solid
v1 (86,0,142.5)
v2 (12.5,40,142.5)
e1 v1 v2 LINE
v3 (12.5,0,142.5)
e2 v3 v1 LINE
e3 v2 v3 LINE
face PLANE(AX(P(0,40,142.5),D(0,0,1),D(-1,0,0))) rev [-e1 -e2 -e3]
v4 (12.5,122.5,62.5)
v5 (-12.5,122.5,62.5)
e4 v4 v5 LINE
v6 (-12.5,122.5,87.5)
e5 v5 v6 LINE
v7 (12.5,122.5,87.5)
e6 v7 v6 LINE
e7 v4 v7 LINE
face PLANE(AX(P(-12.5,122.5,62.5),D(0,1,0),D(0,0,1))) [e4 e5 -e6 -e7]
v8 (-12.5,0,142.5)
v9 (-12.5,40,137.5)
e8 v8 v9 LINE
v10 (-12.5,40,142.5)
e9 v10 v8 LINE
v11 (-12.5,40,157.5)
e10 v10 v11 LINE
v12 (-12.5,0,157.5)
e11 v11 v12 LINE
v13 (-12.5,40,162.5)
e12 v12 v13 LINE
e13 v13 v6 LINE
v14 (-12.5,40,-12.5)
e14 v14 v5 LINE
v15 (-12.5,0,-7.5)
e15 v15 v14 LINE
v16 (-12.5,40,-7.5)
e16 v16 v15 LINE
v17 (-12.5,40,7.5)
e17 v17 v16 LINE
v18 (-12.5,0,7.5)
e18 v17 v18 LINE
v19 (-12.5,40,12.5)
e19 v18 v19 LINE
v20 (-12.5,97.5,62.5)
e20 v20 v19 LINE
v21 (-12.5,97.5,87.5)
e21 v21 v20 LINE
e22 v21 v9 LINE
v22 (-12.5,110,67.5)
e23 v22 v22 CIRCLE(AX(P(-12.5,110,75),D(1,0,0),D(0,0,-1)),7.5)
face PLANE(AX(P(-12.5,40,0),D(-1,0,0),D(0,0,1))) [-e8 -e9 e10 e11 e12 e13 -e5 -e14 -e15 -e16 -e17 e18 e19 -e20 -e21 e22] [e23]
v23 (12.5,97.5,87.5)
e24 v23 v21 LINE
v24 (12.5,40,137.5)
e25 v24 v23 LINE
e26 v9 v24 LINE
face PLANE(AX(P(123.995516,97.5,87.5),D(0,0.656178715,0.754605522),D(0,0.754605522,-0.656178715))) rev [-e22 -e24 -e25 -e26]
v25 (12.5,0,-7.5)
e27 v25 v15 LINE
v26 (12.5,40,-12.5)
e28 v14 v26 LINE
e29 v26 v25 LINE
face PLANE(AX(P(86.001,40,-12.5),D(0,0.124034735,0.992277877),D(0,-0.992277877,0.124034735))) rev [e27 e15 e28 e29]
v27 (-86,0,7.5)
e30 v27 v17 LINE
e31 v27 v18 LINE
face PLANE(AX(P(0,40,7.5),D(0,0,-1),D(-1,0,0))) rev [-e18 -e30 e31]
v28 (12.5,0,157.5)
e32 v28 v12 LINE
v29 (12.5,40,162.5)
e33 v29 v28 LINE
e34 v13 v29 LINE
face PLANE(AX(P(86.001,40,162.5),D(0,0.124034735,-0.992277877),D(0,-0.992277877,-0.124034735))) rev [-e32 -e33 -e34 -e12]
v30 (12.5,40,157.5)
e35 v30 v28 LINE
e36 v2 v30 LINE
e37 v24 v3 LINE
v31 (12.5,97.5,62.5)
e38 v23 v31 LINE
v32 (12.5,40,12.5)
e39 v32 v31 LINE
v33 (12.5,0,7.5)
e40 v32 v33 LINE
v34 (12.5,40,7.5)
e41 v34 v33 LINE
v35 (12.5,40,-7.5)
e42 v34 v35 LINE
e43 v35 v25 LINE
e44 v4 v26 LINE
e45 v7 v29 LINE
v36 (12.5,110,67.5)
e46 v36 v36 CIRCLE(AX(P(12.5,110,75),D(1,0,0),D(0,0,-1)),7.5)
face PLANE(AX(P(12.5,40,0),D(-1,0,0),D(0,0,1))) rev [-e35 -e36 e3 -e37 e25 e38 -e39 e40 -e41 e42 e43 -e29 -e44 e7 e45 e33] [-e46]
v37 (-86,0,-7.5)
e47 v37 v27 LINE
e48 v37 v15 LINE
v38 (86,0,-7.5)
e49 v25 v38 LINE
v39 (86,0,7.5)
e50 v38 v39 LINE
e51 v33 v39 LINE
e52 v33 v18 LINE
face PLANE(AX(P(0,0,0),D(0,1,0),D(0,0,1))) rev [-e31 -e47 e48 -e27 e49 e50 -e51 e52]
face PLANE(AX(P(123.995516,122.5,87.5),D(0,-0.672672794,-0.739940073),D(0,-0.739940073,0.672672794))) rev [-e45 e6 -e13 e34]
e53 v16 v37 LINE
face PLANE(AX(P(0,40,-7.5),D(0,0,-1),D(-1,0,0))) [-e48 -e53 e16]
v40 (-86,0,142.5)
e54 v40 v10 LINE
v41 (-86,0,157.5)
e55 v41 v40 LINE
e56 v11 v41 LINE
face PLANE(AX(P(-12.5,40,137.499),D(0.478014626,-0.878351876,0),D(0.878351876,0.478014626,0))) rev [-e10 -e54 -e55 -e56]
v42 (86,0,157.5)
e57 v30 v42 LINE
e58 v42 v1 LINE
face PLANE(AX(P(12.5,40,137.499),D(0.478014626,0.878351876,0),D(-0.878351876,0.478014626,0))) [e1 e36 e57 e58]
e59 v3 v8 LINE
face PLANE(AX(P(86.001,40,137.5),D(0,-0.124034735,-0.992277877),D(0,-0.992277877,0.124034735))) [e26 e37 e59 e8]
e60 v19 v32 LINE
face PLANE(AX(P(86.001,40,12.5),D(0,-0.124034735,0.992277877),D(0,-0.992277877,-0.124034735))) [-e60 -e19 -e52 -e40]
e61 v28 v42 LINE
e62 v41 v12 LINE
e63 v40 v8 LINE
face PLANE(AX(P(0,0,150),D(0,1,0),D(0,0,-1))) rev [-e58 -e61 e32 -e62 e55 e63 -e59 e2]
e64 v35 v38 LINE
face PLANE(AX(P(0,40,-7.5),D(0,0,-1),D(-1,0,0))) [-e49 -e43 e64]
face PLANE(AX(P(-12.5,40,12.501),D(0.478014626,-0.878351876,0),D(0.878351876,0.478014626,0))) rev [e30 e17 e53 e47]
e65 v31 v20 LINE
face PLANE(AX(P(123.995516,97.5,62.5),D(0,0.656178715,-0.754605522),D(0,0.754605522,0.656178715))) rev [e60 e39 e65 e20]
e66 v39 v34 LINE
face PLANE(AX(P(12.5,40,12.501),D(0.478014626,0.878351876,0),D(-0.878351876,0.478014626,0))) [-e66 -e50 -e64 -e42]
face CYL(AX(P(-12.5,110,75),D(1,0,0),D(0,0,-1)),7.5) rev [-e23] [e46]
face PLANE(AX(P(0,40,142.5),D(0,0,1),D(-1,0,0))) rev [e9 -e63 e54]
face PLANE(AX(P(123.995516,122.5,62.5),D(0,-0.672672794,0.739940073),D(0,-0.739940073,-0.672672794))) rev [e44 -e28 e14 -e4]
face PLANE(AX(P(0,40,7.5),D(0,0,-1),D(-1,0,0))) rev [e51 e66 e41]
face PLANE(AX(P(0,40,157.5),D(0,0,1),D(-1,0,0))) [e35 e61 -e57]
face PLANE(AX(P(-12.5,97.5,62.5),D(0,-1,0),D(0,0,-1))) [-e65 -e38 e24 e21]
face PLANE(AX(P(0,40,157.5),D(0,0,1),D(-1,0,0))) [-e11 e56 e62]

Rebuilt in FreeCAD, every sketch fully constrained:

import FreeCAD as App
import Part
import Sketcher

V = App.Vector
Q = App.Units.Quantity

doc = App.newDocument("Part")
body = doc.addObject("PartDesign::Body", "Body")

# Sketch on XZ plane
sketch1 = body.newObject("Sketcher::SketchObject", "Sketch")
sketch1.AttachmentSupport = (doc.getObject("XZ_Plane"), [""])
sketch1.MapMode = "FlatFace"
sketch1.addGeometry([
    Part.LineSegment(V(-12, 12, 0), V(12, 12, 0)),  # 0
    Part.LineSegment(V(12, 12, 0), V(12, 8, 0)),  # 1
    Part.LineSegment(V(12, 8, 0), V(86, 8, 0)),  # 2
    Part.LineSegment(V(86, 8, 0), V(86, -8, 0)),  # 3
    Part.LineSegment(V(86, -8, 0), V(12, -8, 0)),  # 4
    Part.LineSegment(V(12, -8, 0), V(12, -12, 0)),  # 5
    Part.LineSegment(V(12, -12, 0), V(-12, -12, 0)),  # 6
    Part.LineSegment(V(-12, -12, 0), V(-12, -8, 0)),  # 7
    Part.LineSegment(V(-12, -8, 0), V(-86, -8, 0)),  # 8
    Part.LineSegment(V(-86, -8, 0), V(-86, 8, 0)),  # 9
    Part.LineSegment(V(-86, 8, 0), V(-12, 8, 0)),  # 10
    Part.LineSegment(V(-12, 8, 0), V(-12, 12, 0)),  # 11
], False)
sketch1.addConstraint([
    Sketcher.Constraint("Coincident", 0, 2, 1, 1),
    Sketcher.Constraint("Coincident", 1, 2, 2, 1),
    Sketcher.Constraint("Coincident", 2, 2, 3, 1),
    Sketcher.Constraint("Coincident", 3, 2, 4, 1),
    Sketcher.Constraint("Coincident", 4, 2, 5, 1),
    Sketcher.Constraint("Coincident", 5, 2, 6, 1),
    Sketcher.Constraint("Coincident", 6, 2, 7, 1),
    Sketcher.Constraint("Coincident", 7, 2, 8, 1),
    Sketcher.Constraint("Coincident", 8, 2, 9, 1),
    Sketcher.Constraint("Coincident", 9, 2, 10, 1),
    Sketcher.Constraint("Coincident", 10, 2, 11, 1),
    Sketcher.Constraint("Coincident", 11, 2, 0, 1),
    Sketcher.Constraint("Horizontal", 0),
    Sketcher.Constraint("Vertical", 1),
    Sketcher.Constraint("Horizontal", 2),
    Sketcher.Constraint("Vertical", 3),
    Sketcher.Constraint("Horizontal", 4),
    Sketcher.Constraint("Vertical", 5),
    Sketcher.Constraint("Horizontal", 6),
    Sketcher.Constraint("Vertical", 7),
    Sketcher.Constraint("Horizontal", 8),
    Sketcher.Constraint("Vertical", 9),
    Sketcher.Constraint("Horizontal", 10),
    Sketcher.Constraint("Vertical", 11),
    Sketcher.Constraint("Symmetric", 0, 2, 6, 2, -1, 1),
    Sketcher.Constraint("Symmetric", 2, 2, 8, 2, -1, 1),
    Sketcher.Constraint("Symmetric", 4, 2, 10, 2, -1, 1),
    Sketcher.Constraint("Symmetric", 4, 2, 7, 2, -2),
    Sketcher.Constraint("DistanceX", 0, 1, 0, 2, Q("25 mm")),
    Sketcher.Constraint("DistanceY", 1, 2, 1, 1, Q("5 mm")),
    Sketcher.Constraint("DistanceY", 3, 2, 3, 1, Q("15 mm")),
    Sketcher.Constraint("DistanceX", 2, 1, 2, 2, Q("73.5 mm")),
])
pad1 = body.newObject("PartDesign::Pad", "Pad")
pad1.Profile = sketch1
pad1.Length = 40
pad1.Reversed = True

# Sketch on XY plane
sketch2 = body.newObject("Sketcher::SketchObject", "Sketch001")
sketch2.AttachmentSupport = (doc.getObject("XY_Plane"), [""])
sketch2.MapMode = "FlatFace"
sketch2.AttachmentOffset = App.Placement(V(0, 0, -7.5), App.Rotation())
sketch2.addGeometry([
    Part.LineSegment(V(-12, 40, 0), V(-86, 0, 0)),
    Part.LineSegment(V(-86, 0, 0), V(-86, 40, 0)),
    Part.LineSegment(V(-86, 40, 0), V(-12, 40, 0)),
], False)
sketch2.addConstraint([
    Sketcher.Constraint("Coincident", 0, 2, 1, 1),
    Sketcher.Constraint("Coincident", 1, 2, 2, 1),
    Sketcher.Constraint("Coincident", 2, 2, 0, 1),
    Sketcher.Constraint("Vertical", 1),
    Sketcher.Constraint("Horizontal", 2),
    Sketcher.Constraint("PointOnObject", 0, 2, -1),
    Sketcher.Constraint("DistanceY", 1, 1, 1, 2, Q("40 mm")),
    Sketcher.Constraint("DistanceX", 2, 1, 2, 2, Q("73.5 mm")),
    Sketcher.Constraint("DistanceX", 0, 2, -1, 1, Q("86 mm")),
])
pocket1 = body.newObject("PartDesign::Pocket", "Pocket")
pocket1.Profile = sketch2
pocket1.Length = 15
pocket1.Reversed = True
doc.recompute()

mirrored = body.newObject("PartDesign::Mirrored", "Mirrored")
mirrored.Originals = [pocket1]
mirrored.MirrorPlane = (doc.getObject("YZ_Plane"), [""])
body.Tip = mirrored

# Sketch on YZ plane
sketch3 = body.newObject("Sketcher::SketchObject", "Sketch002")
sketch3.AttachmentSupport = (doc.getObject("YZ_Plane"), [""])
sketch3.MapMode = "FlatFace"
sketch3.AttachmentOffset = App.Placement(V(0, 0, -12.5), App.Rotation())
sketch3.addGeometry([
    Part.LineSegment(V(0, -8, 0), V(40, -12, 0)),
    Part.LineSegment(V(40, -12, 0), V(0, -12, 0)),
    Part.LineSegment(V(0, -12, 0), V(0, -8, 0)),
], False)
sketch3.addConstraint([
    Sketcher.Constraint("Coincident", 0, 2, 1, 1),
    Sketcher.Constraint("Coincident", 1, 2, 2, 1),
    Sketcher.Constraint("Coincident", 2, 2, 0, 1),
    Sketcher.Constraint("Horizontal", 1),
    Sketcher.Constraint("Vertical", 2),
    Sketcher.Constraint("PointOnObject", 1, 2, -2),
    Sketcher.Constraint("DistanceX", 1, 2, 1, 1, Q("40 mm")),
    Sketcher.Constraint("DistanceY", 2, 1, 2, 2, Q("5 mm")),
    Sketcher.Constraint("DistanceY", 0, 2, -1, 1, Q("12.5 mm")),
])
pocket2 = body.newObject("PartDesign::Pocket", "Pocket001")
pocket2.Profile = sketch3
pocket2.Length = 25
pocket2.Reversed = True
doc.recompute()

mirrored2 = body.newObject("PartDesign::Mirrored", "Mirrored001")
mirrored2.Originals = [pocket2]
mirrored2.MirrorPlane = (doc.getObject("XY_Plane"), [""])
body.Tip = mirrored2
body2 = doc.addObject("PartDesign::Body", "Body001")

# Sketch on YZ plane
sketch4 = body2.newObject("Sketcher::SketchObject", "Sketch003")
sketch4.AttachmentSupport = (doc.getObject("YZ_Plane001"), [""])
sketch4.MapMode = "FlatFace"
sketch4.addGeometry([
    Part.LineSegment(V(122, 88, 0), V(98, 88, 0)),  # 0
    Part.LineSegment(V(98, 88, 0), V(98, 62, 0)),  # 1
    Part.LineSegment(V(98, 62, 0), V(122, 62, 0)),  # 2
    Part.LineSegment(V(122, 62, 0), V(122, 88, 0)),  # 3
    Part.Circle(V(110, 75, 0), V(0, 0, 1), 8),  # 4
], False)
sketch4.addConstraint([
    Sketcher.Constraint("Coincident", 0, 2, 1, 1),
    Sketcher.Constraint("Coincident", 1, 2, 2, 1),
    Sketcher.Constraint("Coincident", 2, 2, 3, 1),
    Sketcher.Constraint("Coincident", 3, 2, 0, 1),
    Sketcher.Constraint("Horizontal", 0),
    Sketcher.Constraint("Vertical", 1),
    Sketcher.Constraint("Horizontal", 2),
    Sketcher.Constraint("Vertical", 3),
    Sketcher.Constraint("Equal", 2, 1),
    Sketcher.Constraint("Diameter", 4, Q("15 mm")),
    Sketcher.Constraint("DistanceX", 0, 2, 0, 1, Q("25 mm")),
    Sketcher.Constraint("DistanceX", -1, 1, 4, 3, Q("110 mm")),
    Sketcher.Constraint("DistanceY", -1, 1, 4, 3, Q("75 mm")),
    Sketcher.Constraint("DistanceX", -1, 1, 0, 2, Q("97.5 mm")),
    Sketcher.Constraint("DistanceY", -1, 1, 0, 2, Q("87.5 mm")),
])
pad2 = body2.newObject("PartDesign::Pad", "Pad001")
pad2.Profile = sketch4
pad2.Type = "TwoLengths"
pad2.Length = 12.5
pad2.Length2 = 12.5
body.AllowCompound = True
doc.recompute()

boolean = body.newObject("PartDesign::Boolean", "Boolean")
boolean.Type = "Fuse"
boolean.addObjects([body2])

# Sketch on YZ plane
sketch5 = body.newObject("Sketcher::SketchObject", "Sketch004")
sketch5.AttachmentSupport = (doc.getObject("YZ_Plane"), [""])
sketch5.MapMode = "FlatFace"
sketch5.AttachmentOffset = App.Placement(V(0, 0, -12.5), App.Rotation())
sketch5.addGeometry([
    Part.LineSegment(V(98, 62, 0), V(40, 12, 0)),
    Part.LineSegment(V(40, 12, 0), V(40, -12, 0)),
    Part.LineSegment(V(40, -12, 0), V(122, 62, 0)),
    Part.LineSegment(V(122, 62, 0), V(98, 62, 0)),
], False)
sketch5.addConstraint([
    Sketcher.Constraint("Coincident", 0, 2, 1, 1),
    Sketcher.Constraint("Coincident", 1, 2, 2, 1),
    Sketcher.Constraint("Coincident", 2, 2, 3, 1),
    Sketcher.Constraint("Coincident", 3, 2, 0, 1),
    Sketcher.Constraint("Vertical", 1),
    Sketcher.Constraint("Horizontal", 3),
    Sketcher.Constraint("Equal", 3, 1),
    Sketcher.Constraint("DistanceX", 3, 2, 3, 1, Q("25 mm")),
    Sketcher.Constraint("DistanceX", -1, 1, 0, 2, Q("40 mm")),
    Sketcher.Constraint("DistanceY", 0, 2, 2, 2, Q("50 mm")),
    Sketcher.Constraint("DistanceY", -1, 1, 0, 2, Q("12.5 mm")),
    Sketcher.Constraint("DistanceX", -1, 1, 2, 2, Q("122.5 mm")),
])
pad3 = body.newObject("PartDesign::Pad", "Pad002")
pad3.Profile = sketch5
pad3.Length = 25
body3 = doc.addObject("PartDesign::Body", "Body002")
doc.recompute()

body3.BaseFeature = body
doc.recompute()

mirroring = doc.addObject("Part::Mirroring", "Mirroring")
mirroring.Source = body
mirroring.Base = V(0, 0, 75)
mirroring.Normal = V(0, 0, 1)
body4 = doc.addObject("PartDesign::Body", "Body003")
body4.BaseFeature = mirroring
boolean2 = body3.newObject("PartDesign::Boolean", "Boolean001")
boolean2.Type = "Fuse"
boolean2.addObjects([body4])
doc.recompute()
mirroring.Visibility = False

doc.recompute()
